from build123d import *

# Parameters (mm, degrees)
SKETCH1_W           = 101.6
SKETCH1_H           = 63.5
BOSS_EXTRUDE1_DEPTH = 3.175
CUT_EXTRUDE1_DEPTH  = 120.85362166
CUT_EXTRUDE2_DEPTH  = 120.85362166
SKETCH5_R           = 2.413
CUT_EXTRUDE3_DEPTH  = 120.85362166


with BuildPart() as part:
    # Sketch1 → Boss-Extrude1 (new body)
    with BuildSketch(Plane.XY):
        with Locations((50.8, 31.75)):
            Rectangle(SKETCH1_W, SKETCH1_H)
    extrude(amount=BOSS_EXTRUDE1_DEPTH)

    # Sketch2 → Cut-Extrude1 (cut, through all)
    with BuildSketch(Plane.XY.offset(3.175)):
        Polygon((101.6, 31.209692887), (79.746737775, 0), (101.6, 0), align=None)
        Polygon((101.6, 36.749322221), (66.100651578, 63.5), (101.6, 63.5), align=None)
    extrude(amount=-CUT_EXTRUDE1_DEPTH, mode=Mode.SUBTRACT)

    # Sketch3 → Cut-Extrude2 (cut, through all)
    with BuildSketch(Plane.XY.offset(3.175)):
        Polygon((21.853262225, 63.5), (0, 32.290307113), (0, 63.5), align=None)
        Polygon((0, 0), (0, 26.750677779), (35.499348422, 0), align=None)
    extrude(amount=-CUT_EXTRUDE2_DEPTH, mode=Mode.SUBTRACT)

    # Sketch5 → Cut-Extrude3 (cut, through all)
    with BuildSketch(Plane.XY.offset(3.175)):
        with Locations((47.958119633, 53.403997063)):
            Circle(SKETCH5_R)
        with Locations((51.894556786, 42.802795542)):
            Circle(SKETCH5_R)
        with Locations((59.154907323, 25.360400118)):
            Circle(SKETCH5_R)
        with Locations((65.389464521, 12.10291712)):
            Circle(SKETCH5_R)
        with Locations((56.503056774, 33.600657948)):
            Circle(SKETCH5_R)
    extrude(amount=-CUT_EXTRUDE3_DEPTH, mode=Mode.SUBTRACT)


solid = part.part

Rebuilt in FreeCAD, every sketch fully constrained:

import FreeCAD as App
import Part
import Sketcher

V = App.Vector
Q = App.Units.Quantity

doc = App.newDocument("Part")
body = doc.addObject("PartDesign::Body", "Body")

# Sketch on XY plane
sketch1 = body.newObject("Sketcher::SketchObject", "Sketch")
sketch1.AttachmentSupport = (doc.getObject("XY_Plane"), [""])
sketch1.MapMode = "FlatFace"
sketch1.addGeometry([
    Part.LineSegment(V(0, 64, 0), V(0, 0, 0)),
    Part.LineSegment(V(0, 0, 0), V(102, 0, 0)),
    Part.LineSegment(V(102, 0, 0), V(102, 64, 0)),
    Part.LineSegment(V(102, 64, 0), V(0, 64, 0)),
], False)
sketch1.addConstraint([
    Sketcher.Constraint("Coincident", 0, 2, 1, 1),
    Sketcher.Constraint("Coincident", 1, 2, 2, 1),
    Sketcher.Constraint("Coincident", 2, 2, 3, 1),
    Sketcher.Constraint("Coincident", 3, 2, 0, 1),
    Sketcher.Constraint("Vertical", 0),
    Sketcher.Constraint("Horizontal", 1),
    Sketcher.Constraint("Vertical", 2),
    Sketcher.Constraint("Horizontal", 3),
    Sketcher.Constraint("Coincident", 0, 2, -1, 1),
    Sketcher.Constraint("DistanceX", 1, 1, 1, 2, Q("4 in")),
    Sketcher.Constraint("DistanceY", 0, 2, 0, 1, Q("2.5 in")),
])
pad1 = body.newObject("PartDesign::Pad", "Pad")
pad1.Profile = sketch1
pad1.Length = Q("0.125 in")

# Sketch on XY plane
sketch2 = body.newObject("Sketcher::SketchObject", "Sketch001")
sketch2.AttachmentSupport = (doc.getObject("XY_Plane"), [""])
sketch2.MapMode = "FlatFace"
sketch2.AttachmentOffset = App.Placement(V(0, 0, 0.125 * 25.4), App.Rotation())
sketch2.addGeometry([
    Part.LineSegment(V(102, 31, 0), V(80, 0, 0)),  # 0
    Part.LineSegment(V(80, 0, 0), V(102, 0, 0)),  # 1
    Part.LineSegment(V(102, 0, 0), V(102, 31, 0)),  # 2
    Part.LineSegment(V(66, 64, 0), V(102, 37, 0)),  # 3
    Part.LineSegment(V(102, 37, 0), V(102, 64, 0)),  # 4
    Part.LineSegment(V(102, 64, 0), V(66, 64, 0)),  # 5
], False)
sketch2.addConstraint([
    Sketcher.Constraint("Coincident", 0, 2, 1, 1),
    Sketcher.Constraint("Coincident", 1, 2, 2, 1),
    Sketcher.Constraint("Coincident", 2, 2, 0, 1),
    Sketcher.Constraint("Coincident", 3, 2, 4, 1),
    Sketcher.Constraint("Coincident", 4, 2, 5, 1),
    Sketcher.Constraint("Coincident", 5, 2, 3, 1),
    Sketcher.Constraint("Horizontal", 1),
    Sketcher.Constraint("Vertical", 2),
    Sketcher.Constraint("Vertical", 4),
    Sketcher.Constraint("Horizontal", 5),
    Sketcher.Constraint("PointOnObject", 0, 2, -1),
    Sketcher.Constraint("Vertical", 2, 2, 3, 2),
    Sketcher.Constraint("DistanceX", -1, 1, 1, 2, Q("4 in")),
    Sketcher.Constraint("Angle", 0, Q("-125 deg")),
    Sketcher.Constraint("Angle", 3, Q("-37 deg")),
    Sketcher.Constraint("Distance", 0, Q("1.5 in")),
    Sketcher.Constraint("DistanceY", -1, 1, 4, 2, Q("2.5 in")),
    Sketcher.Constraint("Distance", 3, Q("1.75 in")),
])
pocket1 = body.newObject("PartDesign::Pocket", "Pocket")
pocket1.Profile = sketch2
pocket1.Type = "ThroughAll"

# Sketch on XY plane
sketch3 = body.newObject("Sketcher::SketchObject", "Sketch002")
sketch3.AttachmentSupport = (doc.getObject("XY_Plane"), [""])
sketch3.MapMode = "FlatFace"
sketch3.AttachmentOffset = App.Placement(V(0, 0, 0.125 * 25.4), App.Rotation())
sketch3.addGeometry([
    Part.LineSegment(V(0, 32, 0), V(22, 64, 0)),  # 0
    Part.LineSegment(V(22, 64, 0), V(0, 64, 0)),  # 1
    Part.LineSegment(V(0, 64, 0), V(0, 32, 0)),  # 2
    Part.LineSegment(V(0, 27, 0), V(0, 0, 0)),  # 3
    Part.LineSegment(V(0, 0, 0), V(35, 0, 0)),  # 4
    Part.LineSegment(V(35, 0, 0), V(0, 27, 0)),  # 5
], False)
sketch3.addConstraint([
    Sketcher.Constraint("Coincident", 0, 2, 1, 1),
    Sketcher.Constraint("Coincident", 1, 2, 2, 1),
    Sketcher.Constraint("Coincident", 2, 2, 0, 1),
    Sketcher.Constraint("Coincident", 3, 2, 4, 1),
    Sketcher.Constraint("Coincident", 4, 2, 5, 1),
    Sketcher.Constraint("Coincident", 5, 2, 3, 1),
    Sketcher.Constraint("Horizontal", 1),
    Sketcher.Constraint("Vertical", 2),
    Sketcher.Constraint("Vertical", 3),
    Sketcher.Constraint("Horizontal", 4),
    Sketcher.Constraint("Coincident", 3, 2, -1, 1),
    Sketcher.Constraint("PointOnObject", 1, 2, -2),
    Sketcher.Constraint("Angle", 0, Q("55 deg")),
    Sketcher.Constraint("Angle", 5, Q("143 deg")),
    Sketcher.Constraint("Distance", 0, Q("1.5 in")),
    Sketcher.Constraint("DistanceY", -1, 1, 0, 2, Q("2.5 in")),
    Sketcher.Constraint("Distance", 5, Q("1.75 in")),
])
pocket2 = body.newObject("PartDesign::Pocket", "Pocket001")
pocket2.Profile = sketch3
pocket2.Type = "ThroughAll"

# Sketch on XY plane
sketch4 = body.newObject("Sketcher::SketchObject", "Sketch003")
sketch4.AttachmentSupport = (doc.getObject("XY_Plane"), [""])
sketch4.MapMode = "FlatFace"
sketch4.AttachmentOffset = App.Placement(V(0, 0, 0.125 * 25.4), App.Rotation())
sketch4.addGeometry([
    Part.Circle(V(48, 53.4, 0), V(0, 0, 1), 2.4),  # 0
    Part.Circle(V(51.9, 42.8, 0), V(0, 0, 1), 2.4),  # 1
    Part.Circle(V(59.2, 25.4, 0), V(0, 0, 1), 2.4),  # 2
    Part.Circle(V(65.4, 12.1, 0), V(0, 0, 1), 2.4),  # 3
    Part.Circle(V(56.5, 33.6, 0), V(0, 0, 1), 2.4),  # 4
], False)
sketch4.addConstraint([
    Sketcher.Constraint("Equal", 0, 1),
    Sketcher.Constraint("Equal", 1, 2),
    Sketcher.Constraint("Equal", 2, 3),
    Sketcher.Constraint("Equal", 3, 4),
    Sketcher.Constraint("Diameter", 0, Q("0.19 in")),
    Sketcher.Constraint("DistanceY", -1, 1, 2, 3, Q("25.3604 mm")),
    Sketcher.Constraint("DistanceY", 1, 3, 0, 3, Q("10.601202 mm")),
    Sketcher.Constraint("DistanceX", 1, 3, 4, 3, Q("4.6085 mm")),
    Sketcher.Constraint("DistanceX", -1, 1, 0, 3, Q("47.95812 mm")),
    Sketcher.Constraint("DistanceX", 1, 3, 2, 3, Q("7.260351 mm")),
    Sketcher.Constraint("DistanceY", 3, 3, 1, 3, Q("30.699878 mm")),
    Sketcher.Constraint("DistanceY", 4, 3, 0, 3, Q("19.803339 mm")),
    Sketcher.Constraint("DistanceY", -1, 1, 0, 3, Q("53.403997 mm")),
    Sketcher.Constraint("DistanceX", -1, 1, 1, 3, Q("51.894557 mm")),
    Sketcher.Constraint("DistanceX", -1, 1, 3, 3, Q("65.389465 mm")),
])
pocket3 = body.newObject("PartDesign::Pocket", "Pocket002")
pocket3.Profile = sketch4
pocket3.Type = "ThroughAll"

doc.recompute()
